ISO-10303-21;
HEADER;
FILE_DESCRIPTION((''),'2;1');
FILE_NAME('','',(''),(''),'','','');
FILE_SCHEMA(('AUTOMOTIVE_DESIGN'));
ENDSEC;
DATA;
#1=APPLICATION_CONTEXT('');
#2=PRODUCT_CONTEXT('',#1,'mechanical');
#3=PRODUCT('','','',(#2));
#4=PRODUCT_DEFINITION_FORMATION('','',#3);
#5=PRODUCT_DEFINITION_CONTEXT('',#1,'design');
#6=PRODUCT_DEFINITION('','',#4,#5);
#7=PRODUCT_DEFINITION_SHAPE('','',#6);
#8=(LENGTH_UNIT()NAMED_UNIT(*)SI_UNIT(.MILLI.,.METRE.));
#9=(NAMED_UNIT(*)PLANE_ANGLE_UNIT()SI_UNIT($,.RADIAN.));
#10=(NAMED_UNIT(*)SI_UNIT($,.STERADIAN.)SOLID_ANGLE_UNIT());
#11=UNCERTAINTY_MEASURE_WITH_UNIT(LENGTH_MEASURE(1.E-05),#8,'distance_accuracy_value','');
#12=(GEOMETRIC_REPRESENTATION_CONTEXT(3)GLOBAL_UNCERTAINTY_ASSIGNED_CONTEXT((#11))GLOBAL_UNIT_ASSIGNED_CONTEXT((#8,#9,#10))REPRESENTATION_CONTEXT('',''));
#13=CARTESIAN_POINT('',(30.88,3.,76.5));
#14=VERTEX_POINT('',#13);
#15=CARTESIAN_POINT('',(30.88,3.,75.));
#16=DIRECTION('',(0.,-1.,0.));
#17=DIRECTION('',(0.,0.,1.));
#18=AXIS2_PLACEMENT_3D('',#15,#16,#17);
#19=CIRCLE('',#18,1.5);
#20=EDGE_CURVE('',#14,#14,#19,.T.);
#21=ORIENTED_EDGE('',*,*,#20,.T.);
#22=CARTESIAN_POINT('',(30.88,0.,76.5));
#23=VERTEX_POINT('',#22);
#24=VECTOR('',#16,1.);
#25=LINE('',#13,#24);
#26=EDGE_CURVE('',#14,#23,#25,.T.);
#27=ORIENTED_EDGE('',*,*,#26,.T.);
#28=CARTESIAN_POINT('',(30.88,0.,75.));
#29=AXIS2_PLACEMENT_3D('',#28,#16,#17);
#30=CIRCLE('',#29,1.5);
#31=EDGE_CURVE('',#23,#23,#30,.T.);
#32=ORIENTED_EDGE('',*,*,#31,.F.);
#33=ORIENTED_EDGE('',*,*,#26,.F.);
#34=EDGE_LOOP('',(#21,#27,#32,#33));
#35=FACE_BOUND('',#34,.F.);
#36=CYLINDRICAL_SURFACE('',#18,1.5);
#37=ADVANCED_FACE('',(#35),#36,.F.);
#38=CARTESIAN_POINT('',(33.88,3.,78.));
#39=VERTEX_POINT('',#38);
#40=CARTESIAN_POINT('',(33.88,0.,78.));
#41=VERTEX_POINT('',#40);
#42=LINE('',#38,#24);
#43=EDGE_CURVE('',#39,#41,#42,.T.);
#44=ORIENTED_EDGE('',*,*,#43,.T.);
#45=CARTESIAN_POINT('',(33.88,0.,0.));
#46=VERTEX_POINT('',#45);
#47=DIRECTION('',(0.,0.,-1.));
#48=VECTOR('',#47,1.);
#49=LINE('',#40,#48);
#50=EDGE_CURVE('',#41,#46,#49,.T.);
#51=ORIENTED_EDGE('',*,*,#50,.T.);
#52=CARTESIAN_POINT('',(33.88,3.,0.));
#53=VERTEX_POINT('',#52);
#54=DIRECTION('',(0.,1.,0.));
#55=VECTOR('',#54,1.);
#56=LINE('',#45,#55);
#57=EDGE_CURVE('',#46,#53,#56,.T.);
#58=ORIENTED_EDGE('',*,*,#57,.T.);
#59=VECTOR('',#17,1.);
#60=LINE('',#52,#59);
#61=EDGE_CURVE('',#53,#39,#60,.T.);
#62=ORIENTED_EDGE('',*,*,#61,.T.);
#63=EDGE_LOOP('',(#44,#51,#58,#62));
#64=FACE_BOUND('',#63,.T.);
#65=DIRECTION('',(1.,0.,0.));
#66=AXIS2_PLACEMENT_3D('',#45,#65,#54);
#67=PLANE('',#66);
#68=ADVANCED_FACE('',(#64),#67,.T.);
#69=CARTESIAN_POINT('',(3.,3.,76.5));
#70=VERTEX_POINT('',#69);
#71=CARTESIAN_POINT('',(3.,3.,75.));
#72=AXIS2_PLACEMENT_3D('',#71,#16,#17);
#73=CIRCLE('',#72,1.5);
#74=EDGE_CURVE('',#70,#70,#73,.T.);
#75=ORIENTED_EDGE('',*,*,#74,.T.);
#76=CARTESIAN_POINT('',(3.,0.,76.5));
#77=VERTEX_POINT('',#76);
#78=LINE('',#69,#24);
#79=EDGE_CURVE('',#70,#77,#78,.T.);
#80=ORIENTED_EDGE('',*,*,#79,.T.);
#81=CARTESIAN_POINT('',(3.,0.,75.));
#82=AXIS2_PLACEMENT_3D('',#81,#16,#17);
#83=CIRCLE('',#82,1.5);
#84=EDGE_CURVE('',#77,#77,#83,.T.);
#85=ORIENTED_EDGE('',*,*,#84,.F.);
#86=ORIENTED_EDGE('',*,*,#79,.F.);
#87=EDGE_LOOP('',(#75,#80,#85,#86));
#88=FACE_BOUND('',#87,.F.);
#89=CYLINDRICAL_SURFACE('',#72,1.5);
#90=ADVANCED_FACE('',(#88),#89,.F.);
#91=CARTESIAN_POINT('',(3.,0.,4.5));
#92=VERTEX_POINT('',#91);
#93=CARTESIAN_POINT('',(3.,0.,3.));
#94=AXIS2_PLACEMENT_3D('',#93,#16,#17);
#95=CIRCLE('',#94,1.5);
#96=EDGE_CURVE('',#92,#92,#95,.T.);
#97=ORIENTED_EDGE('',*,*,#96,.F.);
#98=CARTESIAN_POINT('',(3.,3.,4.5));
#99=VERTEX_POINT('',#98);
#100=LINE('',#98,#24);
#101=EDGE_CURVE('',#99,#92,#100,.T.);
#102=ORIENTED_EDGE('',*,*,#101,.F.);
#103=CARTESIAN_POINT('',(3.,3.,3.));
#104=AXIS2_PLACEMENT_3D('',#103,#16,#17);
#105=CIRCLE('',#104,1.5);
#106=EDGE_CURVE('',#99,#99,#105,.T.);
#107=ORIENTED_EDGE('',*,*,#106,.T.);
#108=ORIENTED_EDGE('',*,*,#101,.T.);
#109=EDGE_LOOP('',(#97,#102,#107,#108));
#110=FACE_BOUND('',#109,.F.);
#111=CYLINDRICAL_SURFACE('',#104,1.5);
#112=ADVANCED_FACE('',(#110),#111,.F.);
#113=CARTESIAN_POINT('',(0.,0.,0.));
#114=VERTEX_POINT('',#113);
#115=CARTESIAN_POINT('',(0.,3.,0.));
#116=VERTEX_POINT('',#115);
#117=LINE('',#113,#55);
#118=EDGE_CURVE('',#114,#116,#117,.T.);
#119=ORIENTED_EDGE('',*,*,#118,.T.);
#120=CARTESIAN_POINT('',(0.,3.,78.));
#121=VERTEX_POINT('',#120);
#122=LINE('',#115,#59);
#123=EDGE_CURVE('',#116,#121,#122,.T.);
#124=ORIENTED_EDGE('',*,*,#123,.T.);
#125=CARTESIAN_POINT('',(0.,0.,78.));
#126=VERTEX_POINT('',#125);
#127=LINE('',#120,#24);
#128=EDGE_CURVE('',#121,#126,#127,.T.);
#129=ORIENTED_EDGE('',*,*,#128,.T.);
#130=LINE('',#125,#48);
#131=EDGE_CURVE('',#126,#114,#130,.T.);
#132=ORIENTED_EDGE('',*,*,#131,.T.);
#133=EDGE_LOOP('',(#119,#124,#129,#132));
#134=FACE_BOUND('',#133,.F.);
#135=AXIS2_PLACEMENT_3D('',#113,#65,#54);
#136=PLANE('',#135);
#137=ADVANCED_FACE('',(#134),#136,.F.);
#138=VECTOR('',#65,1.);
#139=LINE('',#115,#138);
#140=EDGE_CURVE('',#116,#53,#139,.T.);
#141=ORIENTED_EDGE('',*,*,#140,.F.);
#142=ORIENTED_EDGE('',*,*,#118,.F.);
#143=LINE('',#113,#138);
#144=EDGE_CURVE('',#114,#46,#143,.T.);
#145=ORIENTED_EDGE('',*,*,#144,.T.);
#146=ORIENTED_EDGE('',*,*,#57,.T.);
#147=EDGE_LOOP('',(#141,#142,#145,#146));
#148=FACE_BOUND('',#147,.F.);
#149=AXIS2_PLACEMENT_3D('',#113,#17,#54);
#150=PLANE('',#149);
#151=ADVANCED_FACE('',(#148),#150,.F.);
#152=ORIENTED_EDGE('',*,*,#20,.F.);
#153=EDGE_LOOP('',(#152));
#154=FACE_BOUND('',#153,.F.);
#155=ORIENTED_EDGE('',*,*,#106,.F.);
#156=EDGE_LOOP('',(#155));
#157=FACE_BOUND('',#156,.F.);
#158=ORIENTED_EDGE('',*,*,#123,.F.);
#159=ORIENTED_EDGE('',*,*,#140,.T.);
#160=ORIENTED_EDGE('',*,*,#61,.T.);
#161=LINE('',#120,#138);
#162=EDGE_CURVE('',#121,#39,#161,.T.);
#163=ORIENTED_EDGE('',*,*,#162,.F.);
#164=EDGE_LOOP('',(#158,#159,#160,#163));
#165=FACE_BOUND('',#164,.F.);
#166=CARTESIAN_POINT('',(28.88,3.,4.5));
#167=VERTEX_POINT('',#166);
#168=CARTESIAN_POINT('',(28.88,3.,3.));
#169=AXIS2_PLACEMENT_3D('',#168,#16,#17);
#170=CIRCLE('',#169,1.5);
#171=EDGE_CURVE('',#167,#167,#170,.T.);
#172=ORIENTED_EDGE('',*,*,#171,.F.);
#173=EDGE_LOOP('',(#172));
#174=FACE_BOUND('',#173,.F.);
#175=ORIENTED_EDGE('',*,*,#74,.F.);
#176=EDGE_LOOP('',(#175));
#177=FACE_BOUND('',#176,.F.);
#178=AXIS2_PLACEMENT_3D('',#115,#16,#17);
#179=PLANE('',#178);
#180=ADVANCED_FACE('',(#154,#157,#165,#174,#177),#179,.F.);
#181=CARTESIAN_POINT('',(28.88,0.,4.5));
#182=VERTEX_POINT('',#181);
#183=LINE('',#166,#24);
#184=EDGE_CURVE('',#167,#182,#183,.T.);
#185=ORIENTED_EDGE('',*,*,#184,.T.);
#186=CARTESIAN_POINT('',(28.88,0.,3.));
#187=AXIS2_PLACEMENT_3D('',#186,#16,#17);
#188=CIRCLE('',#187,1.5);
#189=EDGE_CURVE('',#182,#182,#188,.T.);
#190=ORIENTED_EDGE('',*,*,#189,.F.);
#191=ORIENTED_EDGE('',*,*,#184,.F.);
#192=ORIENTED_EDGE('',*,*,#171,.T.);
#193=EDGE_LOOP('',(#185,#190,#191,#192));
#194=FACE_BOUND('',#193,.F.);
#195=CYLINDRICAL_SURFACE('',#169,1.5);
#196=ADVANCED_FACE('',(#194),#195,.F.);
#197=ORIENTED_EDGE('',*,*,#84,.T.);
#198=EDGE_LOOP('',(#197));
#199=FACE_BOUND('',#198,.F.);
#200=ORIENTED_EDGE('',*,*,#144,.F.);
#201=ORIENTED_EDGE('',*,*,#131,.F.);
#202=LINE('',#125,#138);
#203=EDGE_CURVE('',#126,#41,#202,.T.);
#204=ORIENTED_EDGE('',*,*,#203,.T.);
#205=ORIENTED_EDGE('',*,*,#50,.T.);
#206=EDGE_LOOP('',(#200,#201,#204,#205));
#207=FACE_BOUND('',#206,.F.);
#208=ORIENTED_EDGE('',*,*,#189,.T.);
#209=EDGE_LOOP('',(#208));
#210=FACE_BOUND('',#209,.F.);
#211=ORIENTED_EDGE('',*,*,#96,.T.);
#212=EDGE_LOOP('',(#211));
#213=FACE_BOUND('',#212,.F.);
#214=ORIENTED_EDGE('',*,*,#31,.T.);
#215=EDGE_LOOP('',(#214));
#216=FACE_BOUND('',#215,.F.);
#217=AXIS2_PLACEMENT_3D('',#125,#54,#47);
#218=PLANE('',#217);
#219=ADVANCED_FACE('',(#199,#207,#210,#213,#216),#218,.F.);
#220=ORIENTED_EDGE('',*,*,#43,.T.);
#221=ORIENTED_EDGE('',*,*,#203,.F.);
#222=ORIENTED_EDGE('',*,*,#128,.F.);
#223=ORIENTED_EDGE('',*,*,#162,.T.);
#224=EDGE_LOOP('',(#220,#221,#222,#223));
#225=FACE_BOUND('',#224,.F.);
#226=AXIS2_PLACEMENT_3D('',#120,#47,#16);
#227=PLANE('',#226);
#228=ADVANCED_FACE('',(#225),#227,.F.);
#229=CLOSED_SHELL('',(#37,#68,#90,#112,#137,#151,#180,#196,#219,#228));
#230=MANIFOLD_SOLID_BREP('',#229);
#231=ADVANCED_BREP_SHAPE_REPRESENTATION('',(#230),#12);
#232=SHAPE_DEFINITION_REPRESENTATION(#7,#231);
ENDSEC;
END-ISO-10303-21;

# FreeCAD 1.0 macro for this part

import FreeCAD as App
import Part
import Sketcher
from FreeCAD import Vector
Q = App.Units.Quantity


def add_polygon(sketch, points):
    """Adds a closed chain of lines whose ends are joined by coincident constraints."""
    first, n = sketch.GeometryCount, len(points)
    for a, b in zip(points, points[1:] + points[:1]):
        sketch.addGeometry(Part.LineSegment(App.Vector(*a, 0), App.Vector(*b, 0)), False)
    for i in range(n):
        sketch.addConstraint(Sketcher.Constraint("Coincident", first + i, 2, first + (i + 1) % n, 1))

doc = App.newDocument("Part")
params = doc.addObject("Spreadsheet::Sheet", "Params")
for row, (alias, value) in enumerate([
    ("sketch1_width", "3 mm"),
    ("sketch1_height", "78 mm"),
    ("pad1_length", "33.88 mm"),
    ("sketch2_diameter", "3 mm"),
    ("hole_diameter", "3 mm"),
    ("hole_depth", "5 mm"),
], start=1):
    params.set(f"A{row}", alias)
    params.set(f"B{row}", "=" + value)
    params.setAlias(f"B{row}", alias)

body = doc.addObject("PartDesign::Body", "Body")

# Sketch on YZ plane
sketch1 = body.newObject("Sketcher::SketchObject", "Sketch")
sketch1.AttachmentSupport = (doc.getObject("YZ_Plane"), [""])
sketch1.MapMode = "FlatFace"
add_polygon(sketch1, [(0, 78), (0, 0), (3, 0), (3, 78)])  # lines 0-3
sketch1.addConstraint(Sketcher.Constraint("Vertical", 0))
sketch1.addConstraint(Sketcher.Constraint("Horizontal", 1))
sketch1.addConstraint(Sketcher.Constraint("Vertical", 2))
sketch1.addConstraint(Sketcher.Constraint("Horizontal", 3))
sketch1.addConstraint(Sketcher.Constraint("Coincident", 0, 2, -1, 1))
sketch1.addConstraint(Sketcher.Constraint("DistanceX", 1, 1, 1, 2, Q("3 mm")))
sketch1.addConstraint(Sketcher.Constraint("DistanceY", 0, 2, 0, 1, Q("78 mm")))
sketch1.setExpression("Constraints[9]", "Params.sketch1_width")
sketch1.setExpression("Constraints[10]", "Params.sketch1_height")
pad1 = body.newObject("PartDesign::Pad", "Pad")
pad1.Profile = sketch1
pad1.setExpression("Length", "Params.pad1_length")

# Sketch on XZ plane
sketch2 = body.newObject("Sketcher::SketchObject", "Sketch001")
sketch2.AttachmentSupport = (doc.getObject("XZ_Plane"), [""])
sketch2.MapMode = "FlatFace"
sketch2.AttachmentOffset = App.Placement(Vector(0, 0, -3), App.Rotation())
sketch2.addGeometry(Part.Circle(Vector(3, 75, 0), Vector(0, 0, 1), 1.5), False)
sketch2.addGeometry(Part.Circle(Vector(30.9, 75, 0), Vector(0, 0, 1), 1.5), False)
sketch2.addGeometry(Part.Circle(Vector(3, 3, 0), Vector(0, 0, 1), 1.5), False)
sketch2.addGeometry(Part.Circle(Vector(28.9, 3, 0), Vector(0, 0, 1), 1.5), False)
sketch2.addConstraint(Sketcher.Constraint("Equal", 0, 1))
sketch2.addConstraint(Sketcher.Constraint("Equal", 1, 2))
sketch2.addConstraint(Sketcher.Constraint("Equal", 2, 3))
sketch2.addConstraint(Sketcher.Constraint("Horizontal", 0, 3, 1, 3))
sketch2.addConstraint(Sketcher.Constraint("Horizontal", 2, 3, 3, 3))
sketch2.addConstraint(Sketcher.Constraint("Vertical", 0, 3, 2, 3))
sketch2.addConstraint(Sketcher.Constraint("Diameter", 0, Q("3 mm")))
sketch2.addConstraint(Sketcher.Constraint("DistanceX", -1, 1, 0, 3, Q("3 mm")))
sketch2.addConstraint(Sketcher.Constraint("DistanceY", -1, 1, 0, 3, Q("75 mm")))
sketch2.addConstraint(Sketcher.Constraint("DistanceY", -1, 1, 2, 3, Q("3 mm")))
sketch2.addConstraint(Sketcher.Constraint("DistanceX", 3, 3, 1, 3, Q("2 mm")))
sketch2.addConstraint(Sketcher.Constraint("DistanceX", -1, 1, 1, 3, Q("30.88 mm")))
sketch2.setExpression("Constraints[6]", "Params.sketch2_diameter")
doc.recompute()
hole = body.newObject("PartDesign::Hole", "Hole")
hole.Profile = sketch2
hole.ThreadType = "None"
hole.setExpression("Diameter", "Params.hole_diameter")
hole.DepthType = "Dimension"
hole.setExpression("Depth", "Params.hole_depth")
hole.DrillPoint = "Flat"
hole.Reversed = True

doc.recompute()
